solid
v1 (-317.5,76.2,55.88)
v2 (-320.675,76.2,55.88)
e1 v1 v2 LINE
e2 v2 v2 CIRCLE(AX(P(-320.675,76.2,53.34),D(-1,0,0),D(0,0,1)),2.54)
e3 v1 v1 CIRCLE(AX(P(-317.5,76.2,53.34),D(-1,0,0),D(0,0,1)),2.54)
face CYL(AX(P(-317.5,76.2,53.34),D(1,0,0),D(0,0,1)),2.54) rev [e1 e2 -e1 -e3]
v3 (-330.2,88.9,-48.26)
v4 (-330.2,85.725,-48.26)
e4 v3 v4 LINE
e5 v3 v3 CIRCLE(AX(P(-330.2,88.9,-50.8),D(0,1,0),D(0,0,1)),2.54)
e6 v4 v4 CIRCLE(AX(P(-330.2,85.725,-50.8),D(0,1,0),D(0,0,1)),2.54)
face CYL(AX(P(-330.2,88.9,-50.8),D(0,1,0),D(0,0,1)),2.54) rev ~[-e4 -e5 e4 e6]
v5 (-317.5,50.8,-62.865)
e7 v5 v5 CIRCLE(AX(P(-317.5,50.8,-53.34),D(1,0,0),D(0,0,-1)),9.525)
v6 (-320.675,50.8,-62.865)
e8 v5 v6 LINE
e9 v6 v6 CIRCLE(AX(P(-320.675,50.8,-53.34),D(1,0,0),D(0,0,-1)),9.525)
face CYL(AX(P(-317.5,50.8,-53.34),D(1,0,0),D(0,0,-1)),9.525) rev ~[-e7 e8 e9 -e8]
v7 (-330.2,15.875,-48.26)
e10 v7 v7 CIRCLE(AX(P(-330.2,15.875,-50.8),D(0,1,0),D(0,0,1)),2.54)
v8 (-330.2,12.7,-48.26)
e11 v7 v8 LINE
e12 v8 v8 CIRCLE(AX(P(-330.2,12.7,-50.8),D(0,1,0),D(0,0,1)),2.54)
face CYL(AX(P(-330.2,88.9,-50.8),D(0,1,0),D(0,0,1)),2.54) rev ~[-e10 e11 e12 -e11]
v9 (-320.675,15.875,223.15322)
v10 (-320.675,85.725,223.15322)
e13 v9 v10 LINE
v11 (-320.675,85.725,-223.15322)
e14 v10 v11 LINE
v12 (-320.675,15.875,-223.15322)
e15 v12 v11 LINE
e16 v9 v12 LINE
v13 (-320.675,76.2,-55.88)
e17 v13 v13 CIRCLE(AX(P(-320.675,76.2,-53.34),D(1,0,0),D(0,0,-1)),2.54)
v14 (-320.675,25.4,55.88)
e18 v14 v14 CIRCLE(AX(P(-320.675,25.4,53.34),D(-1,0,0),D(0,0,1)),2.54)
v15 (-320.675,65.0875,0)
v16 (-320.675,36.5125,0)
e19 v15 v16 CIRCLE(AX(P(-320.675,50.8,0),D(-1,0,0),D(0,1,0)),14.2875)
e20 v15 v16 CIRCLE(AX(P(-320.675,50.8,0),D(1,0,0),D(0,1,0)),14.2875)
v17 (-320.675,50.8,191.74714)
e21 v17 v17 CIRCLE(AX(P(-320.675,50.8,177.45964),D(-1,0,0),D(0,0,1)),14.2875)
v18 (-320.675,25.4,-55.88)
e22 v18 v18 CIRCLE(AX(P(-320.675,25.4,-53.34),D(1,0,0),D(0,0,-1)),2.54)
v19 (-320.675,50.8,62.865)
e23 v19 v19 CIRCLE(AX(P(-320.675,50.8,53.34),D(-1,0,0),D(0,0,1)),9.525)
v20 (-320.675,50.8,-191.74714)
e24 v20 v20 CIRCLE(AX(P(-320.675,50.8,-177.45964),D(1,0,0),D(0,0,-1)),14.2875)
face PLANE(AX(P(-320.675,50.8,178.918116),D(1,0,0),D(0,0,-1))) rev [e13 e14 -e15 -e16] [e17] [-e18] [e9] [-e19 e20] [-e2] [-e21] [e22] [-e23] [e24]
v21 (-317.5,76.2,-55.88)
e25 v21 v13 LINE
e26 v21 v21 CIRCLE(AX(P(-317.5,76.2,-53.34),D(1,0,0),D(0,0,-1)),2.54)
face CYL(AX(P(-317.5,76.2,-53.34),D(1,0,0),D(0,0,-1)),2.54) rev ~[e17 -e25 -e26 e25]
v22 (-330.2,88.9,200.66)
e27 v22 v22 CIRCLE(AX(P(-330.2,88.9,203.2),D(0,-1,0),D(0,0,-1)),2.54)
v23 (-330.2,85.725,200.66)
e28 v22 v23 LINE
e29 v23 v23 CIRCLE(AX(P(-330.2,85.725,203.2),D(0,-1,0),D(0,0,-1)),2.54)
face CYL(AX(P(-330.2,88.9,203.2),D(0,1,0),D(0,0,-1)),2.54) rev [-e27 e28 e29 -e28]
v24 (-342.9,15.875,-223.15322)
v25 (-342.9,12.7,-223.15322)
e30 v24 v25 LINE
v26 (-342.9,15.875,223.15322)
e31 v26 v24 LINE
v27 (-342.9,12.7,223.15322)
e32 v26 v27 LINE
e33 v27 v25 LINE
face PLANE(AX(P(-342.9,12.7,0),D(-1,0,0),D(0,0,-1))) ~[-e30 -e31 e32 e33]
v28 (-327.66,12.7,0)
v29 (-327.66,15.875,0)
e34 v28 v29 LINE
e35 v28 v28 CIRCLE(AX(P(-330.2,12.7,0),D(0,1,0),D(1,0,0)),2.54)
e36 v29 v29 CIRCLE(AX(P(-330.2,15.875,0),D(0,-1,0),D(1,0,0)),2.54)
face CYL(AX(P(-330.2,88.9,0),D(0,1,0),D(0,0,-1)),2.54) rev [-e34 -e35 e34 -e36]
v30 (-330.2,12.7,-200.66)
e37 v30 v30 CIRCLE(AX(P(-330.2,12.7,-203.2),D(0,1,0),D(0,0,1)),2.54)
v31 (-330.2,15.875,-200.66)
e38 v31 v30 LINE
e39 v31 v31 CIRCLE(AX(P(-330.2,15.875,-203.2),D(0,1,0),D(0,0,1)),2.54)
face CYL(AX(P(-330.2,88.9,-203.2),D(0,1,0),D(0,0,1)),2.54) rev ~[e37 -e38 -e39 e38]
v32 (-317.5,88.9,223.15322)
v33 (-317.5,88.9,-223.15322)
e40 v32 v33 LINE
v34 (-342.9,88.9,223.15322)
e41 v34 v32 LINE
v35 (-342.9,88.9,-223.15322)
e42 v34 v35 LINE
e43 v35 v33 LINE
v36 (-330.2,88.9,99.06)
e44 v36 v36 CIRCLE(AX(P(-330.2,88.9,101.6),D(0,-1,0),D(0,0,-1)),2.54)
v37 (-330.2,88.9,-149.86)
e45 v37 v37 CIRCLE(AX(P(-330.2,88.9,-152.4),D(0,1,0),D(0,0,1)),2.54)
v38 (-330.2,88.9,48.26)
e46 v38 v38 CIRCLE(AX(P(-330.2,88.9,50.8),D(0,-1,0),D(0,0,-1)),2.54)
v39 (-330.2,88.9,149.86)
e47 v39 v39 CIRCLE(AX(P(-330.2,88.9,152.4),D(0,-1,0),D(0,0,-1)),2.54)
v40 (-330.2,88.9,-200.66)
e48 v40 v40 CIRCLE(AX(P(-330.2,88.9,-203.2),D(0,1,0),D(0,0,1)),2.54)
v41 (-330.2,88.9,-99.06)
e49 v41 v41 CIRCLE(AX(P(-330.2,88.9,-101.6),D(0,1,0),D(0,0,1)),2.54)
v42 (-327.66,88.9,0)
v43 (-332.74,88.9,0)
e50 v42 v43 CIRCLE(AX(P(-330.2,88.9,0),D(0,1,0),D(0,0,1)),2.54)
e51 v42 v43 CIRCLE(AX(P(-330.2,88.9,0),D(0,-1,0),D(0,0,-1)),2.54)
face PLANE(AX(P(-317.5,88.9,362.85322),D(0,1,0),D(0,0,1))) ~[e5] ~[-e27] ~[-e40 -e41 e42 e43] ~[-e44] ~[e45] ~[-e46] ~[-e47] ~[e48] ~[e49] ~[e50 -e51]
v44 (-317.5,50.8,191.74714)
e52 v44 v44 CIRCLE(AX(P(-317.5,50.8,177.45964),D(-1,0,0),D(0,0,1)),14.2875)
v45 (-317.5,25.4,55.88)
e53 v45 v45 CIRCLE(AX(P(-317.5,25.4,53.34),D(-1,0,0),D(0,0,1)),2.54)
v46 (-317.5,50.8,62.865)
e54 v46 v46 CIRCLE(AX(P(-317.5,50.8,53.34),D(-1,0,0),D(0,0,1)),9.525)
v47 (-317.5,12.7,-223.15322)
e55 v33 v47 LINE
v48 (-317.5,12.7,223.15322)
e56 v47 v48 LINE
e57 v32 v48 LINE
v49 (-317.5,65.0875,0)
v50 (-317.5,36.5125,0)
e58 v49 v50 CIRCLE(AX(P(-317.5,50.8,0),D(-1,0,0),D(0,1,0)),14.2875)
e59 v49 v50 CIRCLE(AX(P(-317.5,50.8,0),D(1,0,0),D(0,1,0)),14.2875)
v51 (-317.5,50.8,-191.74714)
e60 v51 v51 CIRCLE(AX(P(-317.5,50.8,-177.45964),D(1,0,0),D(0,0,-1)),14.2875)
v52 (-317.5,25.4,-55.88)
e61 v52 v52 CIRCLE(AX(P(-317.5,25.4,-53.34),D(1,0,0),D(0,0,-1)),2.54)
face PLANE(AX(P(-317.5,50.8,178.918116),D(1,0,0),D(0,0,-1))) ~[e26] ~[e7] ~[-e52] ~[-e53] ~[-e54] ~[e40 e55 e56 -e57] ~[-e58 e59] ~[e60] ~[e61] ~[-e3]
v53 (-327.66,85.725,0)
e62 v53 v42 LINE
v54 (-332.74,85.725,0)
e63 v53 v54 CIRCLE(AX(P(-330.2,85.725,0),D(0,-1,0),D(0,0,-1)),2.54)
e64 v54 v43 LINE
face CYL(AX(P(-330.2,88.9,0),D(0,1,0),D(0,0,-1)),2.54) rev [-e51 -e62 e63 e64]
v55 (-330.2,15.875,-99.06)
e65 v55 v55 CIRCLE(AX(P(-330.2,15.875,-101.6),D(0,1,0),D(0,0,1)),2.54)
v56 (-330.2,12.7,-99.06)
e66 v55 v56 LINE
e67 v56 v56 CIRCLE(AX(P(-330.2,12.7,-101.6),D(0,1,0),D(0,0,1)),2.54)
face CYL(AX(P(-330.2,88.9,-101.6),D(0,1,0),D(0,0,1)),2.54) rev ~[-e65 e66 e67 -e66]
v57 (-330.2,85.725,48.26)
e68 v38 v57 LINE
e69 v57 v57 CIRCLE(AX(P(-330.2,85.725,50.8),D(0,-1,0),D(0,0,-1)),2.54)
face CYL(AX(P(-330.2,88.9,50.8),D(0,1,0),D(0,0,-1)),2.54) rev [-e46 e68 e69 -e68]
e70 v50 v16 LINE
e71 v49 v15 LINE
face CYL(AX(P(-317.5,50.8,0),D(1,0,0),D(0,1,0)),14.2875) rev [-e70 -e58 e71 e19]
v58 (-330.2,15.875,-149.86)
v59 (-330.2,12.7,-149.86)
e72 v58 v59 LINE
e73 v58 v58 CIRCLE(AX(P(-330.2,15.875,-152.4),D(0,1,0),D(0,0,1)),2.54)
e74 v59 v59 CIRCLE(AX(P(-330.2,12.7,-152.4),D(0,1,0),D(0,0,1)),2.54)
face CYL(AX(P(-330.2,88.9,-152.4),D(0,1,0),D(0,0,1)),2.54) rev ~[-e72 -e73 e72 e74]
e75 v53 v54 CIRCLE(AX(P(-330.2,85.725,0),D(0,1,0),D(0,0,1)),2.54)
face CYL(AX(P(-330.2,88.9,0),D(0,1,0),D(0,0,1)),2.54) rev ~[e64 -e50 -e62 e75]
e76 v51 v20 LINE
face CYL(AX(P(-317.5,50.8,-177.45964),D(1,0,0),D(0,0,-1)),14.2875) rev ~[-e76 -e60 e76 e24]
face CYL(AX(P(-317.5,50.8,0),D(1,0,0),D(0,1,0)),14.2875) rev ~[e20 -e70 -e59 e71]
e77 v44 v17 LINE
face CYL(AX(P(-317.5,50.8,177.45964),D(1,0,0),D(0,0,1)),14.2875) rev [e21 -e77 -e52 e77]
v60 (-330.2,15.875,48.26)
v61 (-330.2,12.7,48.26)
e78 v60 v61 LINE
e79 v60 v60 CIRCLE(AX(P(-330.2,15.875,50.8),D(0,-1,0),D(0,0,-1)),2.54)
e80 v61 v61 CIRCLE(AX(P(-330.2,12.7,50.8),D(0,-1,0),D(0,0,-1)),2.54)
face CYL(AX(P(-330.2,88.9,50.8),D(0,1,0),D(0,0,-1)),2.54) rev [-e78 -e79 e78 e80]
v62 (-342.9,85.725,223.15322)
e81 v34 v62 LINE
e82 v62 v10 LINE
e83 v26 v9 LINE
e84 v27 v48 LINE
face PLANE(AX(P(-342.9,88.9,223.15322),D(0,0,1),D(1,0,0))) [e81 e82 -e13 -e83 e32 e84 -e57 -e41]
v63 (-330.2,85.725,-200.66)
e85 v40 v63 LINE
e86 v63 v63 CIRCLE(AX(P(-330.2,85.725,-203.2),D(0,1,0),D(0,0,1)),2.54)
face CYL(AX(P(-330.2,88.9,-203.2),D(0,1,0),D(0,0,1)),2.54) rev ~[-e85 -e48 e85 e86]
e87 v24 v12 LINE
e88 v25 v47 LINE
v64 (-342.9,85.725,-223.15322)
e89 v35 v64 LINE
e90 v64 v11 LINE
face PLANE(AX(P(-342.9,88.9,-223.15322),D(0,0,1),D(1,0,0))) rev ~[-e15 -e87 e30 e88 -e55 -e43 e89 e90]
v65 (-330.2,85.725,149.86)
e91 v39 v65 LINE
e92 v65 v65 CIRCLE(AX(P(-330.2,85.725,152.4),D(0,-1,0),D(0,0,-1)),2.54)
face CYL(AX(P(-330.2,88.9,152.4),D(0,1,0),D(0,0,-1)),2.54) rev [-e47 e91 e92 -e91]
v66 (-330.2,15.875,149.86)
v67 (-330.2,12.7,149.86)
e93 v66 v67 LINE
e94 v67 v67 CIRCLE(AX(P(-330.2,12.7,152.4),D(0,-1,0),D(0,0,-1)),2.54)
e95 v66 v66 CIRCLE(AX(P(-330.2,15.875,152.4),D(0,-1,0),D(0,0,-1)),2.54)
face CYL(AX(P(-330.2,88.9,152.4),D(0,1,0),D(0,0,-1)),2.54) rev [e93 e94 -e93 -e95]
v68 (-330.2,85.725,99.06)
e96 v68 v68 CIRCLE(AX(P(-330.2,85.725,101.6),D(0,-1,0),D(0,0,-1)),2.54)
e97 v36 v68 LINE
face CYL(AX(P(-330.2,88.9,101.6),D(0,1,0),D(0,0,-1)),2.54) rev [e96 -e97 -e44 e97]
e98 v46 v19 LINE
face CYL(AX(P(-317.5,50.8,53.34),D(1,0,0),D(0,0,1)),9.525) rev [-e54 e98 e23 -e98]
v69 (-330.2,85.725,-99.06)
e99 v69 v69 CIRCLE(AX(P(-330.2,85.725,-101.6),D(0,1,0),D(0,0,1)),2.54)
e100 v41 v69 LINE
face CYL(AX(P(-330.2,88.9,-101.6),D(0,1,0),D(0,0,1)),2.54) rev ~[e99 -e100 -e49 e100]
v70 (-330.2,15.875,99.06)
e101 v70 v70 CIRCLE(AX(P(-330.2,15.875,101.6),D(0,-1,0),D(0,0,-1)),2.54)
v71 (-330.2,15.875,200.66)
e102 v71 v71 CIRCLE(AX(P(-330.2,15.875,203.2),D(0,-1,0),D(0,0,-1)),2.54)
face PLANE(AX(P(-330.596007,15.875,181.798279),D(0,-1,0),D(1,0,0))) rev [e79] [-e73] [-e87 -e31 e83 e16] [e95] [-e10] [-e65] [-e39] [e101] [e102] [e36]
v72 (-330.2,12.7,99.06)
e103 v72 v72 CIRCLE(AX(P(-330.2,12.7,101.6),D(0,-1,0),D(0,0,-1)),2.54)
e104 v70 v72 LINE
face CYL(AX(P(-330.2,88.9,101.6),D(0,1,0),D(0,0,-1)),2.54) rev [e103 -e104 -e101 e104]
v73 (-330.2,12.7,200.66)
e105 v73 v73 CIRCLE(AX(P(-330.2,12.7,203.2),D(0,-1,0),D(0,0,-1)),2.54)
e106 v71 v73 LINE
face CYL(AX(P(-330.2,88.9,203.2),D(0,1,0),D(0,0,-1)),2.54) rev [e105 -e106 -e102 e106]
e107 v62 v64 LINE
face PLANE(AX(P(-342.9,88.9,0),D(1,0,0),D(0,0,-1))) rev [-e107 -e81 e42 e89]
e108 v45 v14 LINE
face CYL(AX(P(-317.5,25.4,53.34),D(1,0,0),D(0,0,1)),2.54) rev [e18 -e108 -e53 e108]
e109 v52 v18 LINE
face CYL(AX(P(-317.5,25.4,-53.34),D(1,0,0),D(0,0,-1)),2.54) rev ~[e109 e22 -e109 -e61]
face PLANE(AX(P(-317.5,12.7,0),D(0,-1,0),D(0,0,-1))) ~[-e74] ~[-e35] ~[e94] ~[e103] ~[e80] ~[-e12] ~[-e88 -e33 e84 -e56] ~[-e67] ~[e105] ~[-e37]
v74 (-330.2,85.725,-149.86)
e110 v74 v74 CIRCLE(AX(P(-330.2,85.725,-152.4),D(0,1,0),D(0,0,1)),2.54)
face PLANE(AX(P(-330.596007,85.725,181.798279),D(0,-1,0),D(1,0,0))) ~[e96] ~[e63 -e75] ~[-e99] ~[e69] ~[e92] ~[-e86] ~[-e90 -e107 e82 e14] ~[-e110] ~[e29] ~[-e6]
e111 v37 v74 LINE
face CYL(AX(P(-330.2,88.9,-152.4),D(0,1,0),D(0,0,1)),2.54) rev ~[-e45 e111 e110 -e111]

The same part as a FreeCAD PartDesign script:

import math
import FreeCAD as App
import Part
import Sketcher
Q = App.Units.Quantity

doc = App.newDocument("Part")
body = doc.addObject("PartDesign::Body", "Body")

sketch1 = body.newObject("Sketcher::SketchObject", "Sketch")
sketch1.AttachmentSupport = (doc.getObject("YZ_Plane"), [""])
sketch1.MapMode = "FlatFace"
sketch1.AttachmentOffset = App.Placement(App.Vector(0, 0, -12.5 * 25.4), App.Rotation())
sketch1.addGeometry([
    Part.LineSegment(App.Vector(88.9, -362.9, 0), App.Vector(88.9, 0, 0)),
    Part.LineSegment(App.Vector(88.9, 0, 0), App.Vector(65.1, 0, 0)),
    Part.ArcOfCircle(Part.Circle(App.Vector(50.8, 0, 0), App.Vector(0, 0, 1), 14.3), math.radians(180), math.radians(360)),
    Part.LineSegment(App.Vector(36.5, 0, 0), App.Vector(12.7, 0, 0)),
    Part.LineSegment(App.Vector(12.7, 0, 0), App.Vector(12.7, -362.9, 0)),
    Part.LineSegment(App.Vector(12.7, -362.9, 0), App.Vector(88.9, -362.9, 0)),
    Part.Circle(App.Vector(25.4, -53.3, 0), App.Vector(0, 0, 1), 2.5),
    Part.Circle(App.Vector(50.8, -53.3, 0), App.Vector(0, 0, 1), 9.5),
    Part.Circle(App.Vector(50.8, -177.5, 0), App.Vector(0, 0, 1), 14.3),
    Part.Circle(App.Vector(76.2, -53.3, 0), App.Vector(0, 0, 1), 2.5),
    Part.Circle(App.Vector(54, -337.5, 0), App.Vector(0, 0, 1), 14.3),
], False)
sketch1.addConstraint([
    Sketcher.Constraint("Coincident", 0, 2, 1, 1),
    Sketcher.Constraint("Coincident", 1, 2, 2, 2),
    Sketcher.Constraint("Coincident", 2, 1, 3, 1),
    Sketcher.Constraint("Coincident", 3, 2, 4, 1),
    Sketcher.Constraint("Coincident", 4, 2, 5, 1),
    Sketcher.Constraint("Coincident", 5, 2, 0, 1),
    Sketcher.Constraint("Vertical", 0),
    Sketcher.Constraint("Horizontal", 1),
    Sketcher.Constraint("Horizontal", 3),
    Sketcher.Constraint("Vertical", 4),
    Sketcher.Constraint("Horizontal", 5),
    Sketcher.Constraint("Equal", 2, 8),
    Sketcher.Constraint("Equal", 6, 9),
    Sketcher.Constraint("Equal", 8, 10),
    Sketcher.Constraint("PointOnObject", 2, 3, -1),
    Sketcher.Constraint("PointOnObject", 0, 2, -1),
    Sketcher.Constraint("PointOnObject", 2, 1, -1),
    Sketcher.Constraint("Horizontal", 6, 3, 7, 3),
    Sketcher.Constraint("Horizontal", 7, 3, 9, 3),
    Sketcher.Constraint("Vertical", 2, 3, 7, 3),
    Sketcher.Constraint("Vertical", 7, 3, 8, 3),
    Sketcher.Constraint("Equal", 1, 3),
    Sketcher.Constraint("Diameter", 6, Q("0.2 in")),
    Sketcher.Constraint("Diameter", 7, Q("0.75 in")),
    Sketcher.Constraint("DistanceX", 5, 1, 5, 2, Q("3 in")),
    Sketcher.Constraint("Diameter", 8, Q("1.125 in")),
    Sketcher.Constraint("DistanceX", -1, 1, 2, 3, Q("2 in")),
    Sketcher.Constraint("DistanceX", -1, 1, 6, 3, Q("1 in")),
    Sketcher.Constraint("DistanceX", -1, 1, 9, 3, Q("3 in")),
    Sketcher.Constraint("DistanceY", 4, 2, 10, 3, Q("1 in")),
    Sketcher.Constraint("DistanceY", 6, 3, -1, 1, Q("2.1 in")),
    Sketcher.Constraint("DistanceX", -1, 1, 10, 3, Q("2.125 in")),
    Sketcher.Constraint("DistanceY", 8, 3, -1, 1, Q("6.9866 in")),
    Sketcher.Constraint("DistanceY", 0, 1, 0, 2, Q("362.85322 mm")),
])
pad1 = body.newObject("PartDesign::Pad", "Pad")
pad1.Profile = sketch1
pad1.Length = Q("0.125 in")
pad1.Reversed = True

sketch2 = body.newObject("Sketcher::SketchObject", "Sketch001")
sketch2.AttachmentSupport = (doc.getObject("XZ_Plane"), [""])
sketch2.MapMode = "FlatFace"
sketch2.AttachmentOffset = App.Placement(App.Vector(0, 0, -3.5 * 25.4), App.Rotation())
sketch2.addGeometry([
    Part.LineSegment(App.Vector(-343, 0, 0), App.Vector(-319, 0, 0)),
    Part.LineSegment(App.Vector(-319, 0, 0), App.Vector(-318, -363, 0)),
    Part.LineSegment(App.Vector(-318, -363, 0), App.Vector(-343, -363, 0)),
    Part.LineSegment(App.Vector(-343, -363, 0), App.Vector(-343, 0, 0)),
], False)
sketch2.addConstraint([
    Sketcher.Constraint("Coincident", 0, 2, 1, 1),
    Sketcher.Constraint("Coincident", 1, 2, 2, 1),
    Sketcher.Constraint("Coincident", 2, 2, 3, 1),
    Sketcher.Constraint("Coincident", 3, 2, 0, 1),
    Sketcher.Constraint("Horizontal", 0),
    Sketcher.Constraint("Horizontal", 2),
    Sketcher.Constraint("Vertical", 3),
    Sketcher.Constraint("PointOnObject", 0, 2, -1),
    Sketcher.Constraint("DistanceX", 2, 2, 2, 1, Q("1 in")),
    Sketcher.Constraint("DistanceX", 1, 2, -1, 1, Q("12.5 in")),
    Sketcher.Constraint("DistanceX", 0, 1, 0, 2, Q("0.9375 in")),
    Sketcher.Constraint("DistanceY", 3, 1, 3, 2, Q("362.85322 mm")),
])
pad2 = body.newObject("PartDesign::Pad", "Pad001")
pad2.Profile = sketch2
pad2.Length = Q("0.125 in")

sketch3 = body.newObject("Sketcher::SketchObject", "Sketch002")
sketch3.AttachmentSupport = (doc.getObject("XZ_Plane"), [""])
sketch3.MapMode = "FlatFace"
sketch3.AttachmentOffset = App.Placement(App.Vector(0, 0, -0.5 * 25.4), App.Rotation())
sketch3.addGeometry([
    Part.LineSegment(App.Vector(-343, 0, 0), App.Vector(-319, 0, 0)),
    Part.LineSegment(App.Vector(-319, 0, 0), App.Vector(-318, -363, 0)),
    Part.LineSegment(App.Vector(-318, -363, 0), App.Vector(-343, -363, 0)),
    Part.LineSegment(App.Vector(-343, -363, 0), App.Vector(-343, 0, 0)),
], False)
sketch3.addConstraint([
    Sketcher.Constraint("Coincident", 0, 2, 1, 1),
    Sketcher.Constraint("Coincident", 1, 2, 2, 1),
    Sketcher.Constraint("Coincident", 2, 2, 3, 1),
    Sketcher.Constraint("Coincident", 3, 2, 0, 1),
    Sketcher.Constraint("Horizontal", 0),
    Sketcher.Constraint("Horizontal", 2),
    Sketcher.Constraint("Vertical", 3),
    Sketcher.Constraint("PointOnObject", 0, 2, -1),
    Sketcher.Constraint("DistanceX", 2, 2, 2, 1, Q("1 in")),
    Sketcher.Constraint("DistanceX", 1, 2, -1, 1, Q("12.5 in")),
    Sketcher.Constraint("DistanceX", 0, 1, 0, 2, Q("0.9375 in")),
    Sketcher.Constraint("DistanceY", 3, 1, 3, 2, Q("362.85322 mm")),
])
pad3 = body.newObject("PartDesign::Pad", "Pad002")
pad3.Profile = sketch3
pad3.Length = Q("0.125 in")
pad3.Reversed = True

sketch4 = body.newObject("Sketcher::SketchObject", "Sketch003")
sketch4.AttachmentSupport = (doc.getObject("XZ_Plane"), [""])
sketch4.MapMode = "FlatFace"
sketch4.AttachmentOffset = App.Placement(App.Vector(0, 0, -3.5 * 25.4), App.Rotation())
sketch4.addGeometry(Part.Circle(App.Vector(-330.2, -355.6, 0), App.Vector(0, 0, 1), 2.5), False)
sketch4.addConstraint([
    Sketcher.Constraint("Diameter", 0, Q("0.2 in")),
    Sketcher.Constraint("DistanceX", 0, 3, -1, 1, Q("13 in")),
    Sketcher.Constraint("DistanceY", 0, 3, -1, 1, Q("14 in")),
])
pocket1 = body.newObject("PartDesign::Pocket", "Pocket")
pocket1.Profile = sketch4
pocket1.Type = "ThroughAll"
pocket1.Reversed = True
doc.recompute()

linearpattern = body.newObject("PartDesign::LinearPattern", "LinearPattern")
linearpattern.Originals = [pocket1]
linearpattern.Direction = (doc.getObject("Z_Axis"), [""])
linearpattern.Mode = "offset"
linearpattern.Offset = Q("2 in")
linearpattern.Occurrences = 10
body.Tip = linearpattern
body2 = doc.addObject("PartDesign::Body", "Body001")
doc.recompute()

body2.BaseFeature = body
doc.recompute()

mirroring = doc.addObject("Part::Mirroring", "Mirroring")
mirroring.Source = body
mirroring.Base = App.Vector(-320.239665, 22.265915, 0)
mirroring.Normal = App.Vector(0, 0, 1)
body3 = doc.addObject("PartDesign::Body", "Body002")
body3.BaseFeature = mirroring
boolean = body2.newObject("PartDesign::Boolean", "Boolean")
boolean.Type = "Fuse"
boolean.addObjects([body3])
doc.recompute()

sketch5 = body2.newObject("Sketcher::SketchObject", "Sketch004")
sketch5.AttachmentSupport = (doc.getObject("XZ_Plane001"), [""])
sketch5.MapMode = "FlatFace"
sketch5.AttachmentOffset = App.Placement(App.Vector(0, 0, -3.5 * 25.4), App.Rotation())
sketch5.addGeometry([
    Part.LineSegment(App.Vector(-343, -363, 0), App.Vector(-343, -223, 0)),
    Part.LineSegment(App.Vector(-343, -223, 0), App.Vector(-318, -223, 0)),
    Part.LineSegment(App.Vector(-318, -223, 0), App.Vector(-318, -363, 0)),
    Part.LineSegment(App.Vector(-318, -363, 0), App.Vector(-343, -363, 0)),
    Part.LineSegment(App.Vector(-343, 223, 0), App.Vector(-343, 363, 0)),
    Part.LineSegment(App.Vector(-343, 363, 0), App.Vector(-318, 363, 0)),
    Part.LineSegment(App.Vector(-318, 363, 0), App.Vector(-318, 223, 0)),
    Part.LineSegment(App.Vector(-318, 223, 0), App.Vector(-343, 223, 0)),
], False)
sketch5.addConstraint([
    Sketcher.Constraint("Coincident", 0, 2, 1, 1),
    Sketcher.Constraint("Coincident", 1, 2, 2, 1),
    Sketcher.Constraint("Coincident", 2, 2, 3, 1),
    Sketcher.Constraint("Coincident", 3, 2, 0, 1),
    Sketcher.Constraint("Coincident", 4, 2, 5, 1),
    Sketcher.Constraint("Coincident", 5, 2, 6, 1),
    Sketcher.Constraint("Coincident", 6, 2, 7, 1),
    Sketcher.Constraint("Coincident", 7, 2, 4, 1),
    Sketcher.Constraint("Vertical", 0),
    Sketcher.Constraint("Horizontal", 1),
    Sketcher.Constraint("Vertical", 2),
    Sketcher.Constraint("Horizontal", 3),
    Sketcher.Constraint("Vertical", 4),
    Sketcher.Constraint("Horizontal", 5),
    Sketcher.Constraint("Vertical", 6),
    Sketcher.Constraint("Horizontal", 7),
    Sketcher.Constraint("Symmetric", 3, 2, 4, 2, -1),
    Sketcher.Constraint("Symmetric", 1, 2, 6, 2, -1),
    Sketcher.Constraint("DistanceX", 1, 1, 1, 2, Q("1 in")),
    Sketcher.Constraint("DistanceY", 0, 1, 0, 2, Q("5.5 in")),
    Sketcher.Constraint("DistanceX", 0, 2, -1, 1, Q("13.5 in")),
    Sketcher.Constraint("DistanceY", 0, 2, -1, 1, Q("223.15322 mm")),
])
pocket2 = body2.newObject("PartDesign::Pocket", "Pocket001")
pocket2.Profile = sketch5
pocket2.Type = "ThroughAll"
pocket2.Reversed = True
mirroring.Visibility = False

doc.recompute()
